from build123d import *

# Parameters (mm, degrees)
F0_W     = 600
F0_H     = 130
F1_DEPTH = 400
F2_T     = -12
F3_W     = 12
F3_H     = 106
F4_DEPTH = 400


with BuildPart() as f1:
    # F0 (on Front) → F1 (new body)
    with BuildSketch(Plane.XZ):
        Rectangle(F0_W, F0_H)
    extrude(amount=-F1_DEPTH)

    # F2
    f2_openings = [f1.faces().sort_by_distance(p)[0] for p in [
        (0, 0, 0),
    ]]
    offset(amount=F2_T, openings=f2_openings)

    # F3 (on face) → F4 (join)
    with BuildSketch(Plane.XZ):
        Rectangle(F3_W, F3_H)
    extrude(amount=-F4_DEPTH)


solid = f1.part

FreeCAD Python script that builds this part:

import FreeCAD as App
import Part
import Sketcher

V = App.Vector


def faces_at(feature, points):
    """Names of the faces that lie closest to the given points."""
    faces = feature.Shape.Faces
    near = lambda p: min(range(len(faces)), key=lambda i: faces[i].distToShape(Part.Vertex(*p))[0])
    return sorted({f"Face{near(p) + 1}" for p in points})


def add_polygon(sketch, points):
    """Adds a closed chain of lines whose ends are joined by coincident constraints."""
    first, n = sketch.GeometryCount, len(points)
    for a, b in zip(points, points[1:] + points[:1]):
        sketch.addGeometry(Part.LineSegment(App.Vector(*a, 0), App.Vector(*b, 0)), False)
    for i in range(n):
        sketch.addConstraint(Sketcher.Constraint("Coincident", first + i, 2, first + (i + 1) % n, 1))

doc = App.newDocument("Part")
body = doc.addObject("PartDesign::Body", "Body")

sketch1 = doc.addObject("Sketcher::SketchObject", "Sketch")
body.addObject(sketch1)
sketch1.AttachmentSupport = (doc.XZ_Plane, [""])
sketch1.MapMode = "FlatFace"
add_polygon(sketch1, [(-300, 65), (-300, -65), (300, -65), (300, 65)])
sketch1.addConstraint([
    Sketcher.Constraint("Vertical", 0),
    Sketcher.Constraint("Horizontal", 1),
    Sketcher.Constraint("Vertical", 2),
    Sketcher.Constraint("Horizontal", 3),
    Sketcher.Constraint("Symmetric", 0, 2, 2, 2, -1, 1),
    Sketcher.Constraint("DistanceX", 1, 1, 1, 2, 600.0),
    Sketcher.Constraint("DistanceY", 0, 2, 0, 1, 130.0),
])
pad1 = doc.addObject("PartDesign::Pad", "Pad")
body.addObject(pad1)
pad1.Profile = sketch1
pad1.Length = 400
pad1.Reversed = True
doc.recompute()

thickness = doc.addObject("PartDesign::Thickness", "Thickness")
body.addObject(thickness)
thickness.Base = (pad1, faces_at(pad1, [(0, 0, 0)]))
thickness.Value = 12
thickness.Reversed = True
thickness.Join = "Arc"

sketch2 = doc.addObject("Sketcher::SketchObject", "Sketch001")
body.addObject(sketch2)
sketch2.AttachmentSupport = (doc.XZ_Plane, [""])
sketch2.MapMode = "FlatFace"
add_polygon(sketch2, [(-6, 53), (-6, -53), (6, -53), (6, 53)])
sketch2.addConstraint([
    Sketcher.Constraint("Vertical", 0),
    Sketcher.Constraint("Horizontal", 1),
    Sketcher.Constraint("Vertical", 2),
    Sketcher.Constraint("Horizontal", 3),
    Sketcher.Constraint("Symmetric", 0, 2, 2, 2, -1, 1),
    Sketcher.Constraint("DistanceX", 1, 1, 1, 2, 12.0),
    Sketcher.Constraint("DistanceY", 0, 2, 0, 1, 106.0),
])
pad2 = doc.addObject("PartDesign::Pad", "Pad001")
body.addObject(pad2)
pad2.Profile = sketch2
pad2.Length = 400
pad2.Reversed = True

doc.recompute()
